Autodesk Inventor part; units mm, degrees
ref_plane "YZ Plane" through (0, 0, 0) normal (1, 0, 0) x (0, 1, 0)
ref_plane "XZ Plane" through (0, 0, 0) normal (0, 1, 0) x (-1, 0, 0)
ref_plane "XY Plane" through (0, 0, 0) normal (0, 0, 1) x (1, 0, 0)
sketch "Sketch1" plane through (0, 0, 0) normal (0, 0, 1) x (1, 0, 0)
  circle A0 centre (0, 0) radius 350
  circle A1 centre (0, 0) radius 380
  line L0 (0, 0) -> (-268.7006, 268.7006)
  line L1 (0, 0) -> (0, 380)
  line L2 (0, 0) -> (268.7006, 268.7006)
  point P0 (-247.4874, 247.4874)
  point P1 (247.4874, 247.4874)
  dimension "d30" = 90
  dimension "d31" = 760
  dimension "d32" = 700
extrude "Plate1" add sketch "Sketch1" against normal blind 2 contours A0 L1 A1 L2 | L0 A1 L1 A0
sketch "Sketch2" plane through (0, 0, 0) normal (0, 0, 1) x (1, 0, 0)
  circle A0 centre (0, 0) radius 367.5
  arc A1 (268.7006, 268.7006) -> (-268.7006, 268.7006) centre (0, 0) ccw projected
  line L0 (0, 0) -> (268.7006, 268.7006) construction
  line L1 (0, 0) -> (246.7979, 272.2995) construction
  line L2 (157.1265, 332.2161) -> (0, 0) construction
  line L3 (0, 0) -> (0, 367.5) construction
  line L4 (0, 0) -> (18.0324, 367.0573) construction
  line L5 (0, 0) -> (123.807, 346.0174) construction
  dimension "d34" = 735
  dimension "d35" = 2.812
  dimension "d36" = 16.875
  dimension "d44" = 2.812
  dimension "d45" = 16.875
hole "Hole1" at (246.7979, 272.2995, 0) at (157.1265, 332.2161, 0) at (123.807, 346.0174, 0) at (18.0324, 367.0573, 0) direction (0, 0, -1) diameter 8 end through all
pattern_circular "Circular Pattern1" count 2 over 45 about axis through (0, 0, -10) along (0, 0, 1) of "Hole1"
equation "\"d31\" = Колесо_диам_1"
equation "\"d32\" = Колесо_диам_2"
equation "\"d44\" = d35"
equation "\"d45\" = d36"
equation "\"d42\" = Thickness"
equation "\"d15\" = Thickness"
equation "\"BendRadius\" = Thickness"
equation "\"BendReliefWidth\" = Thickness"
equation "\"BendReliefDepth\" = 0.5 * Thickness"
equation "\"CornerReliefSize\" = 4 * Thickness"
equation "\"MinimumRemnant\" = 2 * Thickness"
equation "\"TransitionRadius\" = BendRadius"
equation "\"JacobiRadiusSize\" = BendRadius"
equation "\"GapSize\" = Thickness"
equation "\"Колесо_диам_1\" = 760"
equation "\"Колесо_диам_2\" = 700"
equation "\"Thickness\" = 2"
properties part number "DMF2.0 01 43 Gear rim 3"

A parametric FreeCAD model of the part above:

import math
import FreeCAD as App
import Part
import Sketcher

V = App.Vector
Q = App.Units.Quantity

doc = App.newDocument("Part")
body = doc.addObject("PartDesign::Body", "Body")

# Sketch on XY plane
sketch1 = doc.addObject("Sketcher::SketchObject", "Sketch")
body.addObject(sketch1)
sketch1.AttachmentSupport = (doc.XY_Plane, [""])
sketch1.MapMode = "FlatFace"
sketch1.addGeometry(Part.LineSegment(V(247.487373, 247.487373, 0), V(268.7006, 268.7006, 0)), False)
sketch1.addGeometry(Part.ArcOfCircle(Part.Circle(V(0, 0, 0), V(0, 0, 1), 380), math.radians(45), math.radians(135)), False)
sketch1.addGeometry(Part.LineSegment(V(-268.7006, 268.7006, 0), V(-247.487373, 247.487373, 0)), False)
sketch1.addGeometry(Part.ArcOfCircle(Part.Circle(V(0, 0, 0), V(0, 0, 1), 350), math.radians(45), math.radians(135)), False)
sketch1.addConstraint(Sketcher.Constraint("Coincident", 0, 2, 1, 1))
sketch1.addConstraint(Sketcher.Constraint("Coincident", 1, 2, 2, 1))
sketch1.addConstraint(Sketcher.Constraint("Coincident", 2, 2, 3, 2))
sketch1.addConstraint(Sketcher.Constraint("Coincident", 3, 1, 0, 1))
sketch1.addConstraint(Sketcher.Constraint("Coincident", 1, 3, -1, 1))
sketch1.addConstraint(Sketcher.Constraint("Coincident", 3, 3, -1, 1))
sketch1.addConstraint(Sketcher.Constraint("Perpendicular", 0, 2))
sketch1.addConstraint(Sketcher.Constraint("Horizontal", 0, 2, 1, 2))
sketch1.addConstraint(Sketcher.Constraint("Horizontal", 2, 2, 3, 1))
sketch1.addConstraint(Sketcher.Constraint("Radius", 1, Q("380 mm")))
sketch1.addConstraint(Sketcher.Constraint("Radius", 3, Q("350 mm")))
sketch1.addConstraint(Sketcher.Constraint("DistanceX", 2, 2, 0, 2, Q("516.188 mm")))
pad1 = doc.addObject("PartDesign::Pad", "Pad")
body.addObject(pad1)
pad1.Profile = sketch1
pad1.Length = 2
pad1.Reversed = True

# Sketch on XY plane
sketch2 = doc.addObject("Sketcher::SketchObject", "Sketch001")
body.addObject(sketch2)
sketch2.AttachmentSupport = (doc.XY_Plane, [""])
sketch2.MapMode = "FlatFace"
sketch2.addGeometry(Part.Circle(V(246.7979, 272.2995, 0), V(0, 0, 1), 4), False)
sketch2.addGeometry(Part.Circle(V(157.1265, 332.2161, 0), V(0, 0, 1), 4), False)
sketch2.addGeometry(Part.Circle(V(123.807, 346.0174, 0), V(0, 0, 1), 4), False)
sketch2.addGeometry(Part.Circle(V(18.0324, 367.0573, 0), V(0, 0, 1), 4), False)
sketch2.addConstraint(Sketcher.Constraint("Equal", 0, 1))
sketch2.addConstraint(Sketcher.Constraint("Equal", 1, 2))
sketch2.addConstraint(Sketcher.Constraint("Equal", 2, 3))
sketch2.addConstraint(Sketcher.Constraint("Diameter", 0, Q("8 mm")))
sketch2.addConstraint(Sketcher.Constraint("DistanceY", 2, 3, 3, 3, Q("21.04 mm")))
sketch2.addConstraint(Sketcher.Constraint("DistanceX", -1, 1, 0, 3, Q("246.798 mm")))
sketch2.addConstraint(Sketcher.Constraint("DistanceY", -1, 1, 1, 3, Q("332.216 mm")))
sketch2.addConstraint(Sketcher.Constraint("DistanceX", -1, 1, 2, 3, Q("123.807 mm")))
sketch2.addConstraint(Sketcher.Constraint("DistanceY", 0, 3, 2, 3, Q("73.718 mm")))
sketch2.addConstraint(Sketcher.Constraint("DistanceX", 3, 3, 1, 3, Q("139.094 mm")))
sketch2.addConstraint(Sketcher.Constraint("DistanceY", -1, 1, 0, 3, Q("272.2995 mm")))
sketch2.addConstraint(Sketcher.Constraint("DistanceX", -1, 1, 1, 3, Q("157.1265 mm")))
doc.recompute()
hole = doc.addObject("PartDesign::Hole", "Hole")
body.addObject(hole)
hole.Profile = sketch2
hole.ThreadType = "None"
hole.Diameter = 8
hole.DepthType = "ThroughAll"
doc.recompute()

polarpattern = doc.addObject("PartDesign::PolarPattern", "PolarPattern")
body.addObject(polarpattern)
polarpattern.Originals = [hole]
polarpattern.Axis = (doc.Z_Axis, [""])
polarpattern.Angle = 45
polarpattern.Occurrences = 2
body.Tip = polarpattern

doc.recompute()
